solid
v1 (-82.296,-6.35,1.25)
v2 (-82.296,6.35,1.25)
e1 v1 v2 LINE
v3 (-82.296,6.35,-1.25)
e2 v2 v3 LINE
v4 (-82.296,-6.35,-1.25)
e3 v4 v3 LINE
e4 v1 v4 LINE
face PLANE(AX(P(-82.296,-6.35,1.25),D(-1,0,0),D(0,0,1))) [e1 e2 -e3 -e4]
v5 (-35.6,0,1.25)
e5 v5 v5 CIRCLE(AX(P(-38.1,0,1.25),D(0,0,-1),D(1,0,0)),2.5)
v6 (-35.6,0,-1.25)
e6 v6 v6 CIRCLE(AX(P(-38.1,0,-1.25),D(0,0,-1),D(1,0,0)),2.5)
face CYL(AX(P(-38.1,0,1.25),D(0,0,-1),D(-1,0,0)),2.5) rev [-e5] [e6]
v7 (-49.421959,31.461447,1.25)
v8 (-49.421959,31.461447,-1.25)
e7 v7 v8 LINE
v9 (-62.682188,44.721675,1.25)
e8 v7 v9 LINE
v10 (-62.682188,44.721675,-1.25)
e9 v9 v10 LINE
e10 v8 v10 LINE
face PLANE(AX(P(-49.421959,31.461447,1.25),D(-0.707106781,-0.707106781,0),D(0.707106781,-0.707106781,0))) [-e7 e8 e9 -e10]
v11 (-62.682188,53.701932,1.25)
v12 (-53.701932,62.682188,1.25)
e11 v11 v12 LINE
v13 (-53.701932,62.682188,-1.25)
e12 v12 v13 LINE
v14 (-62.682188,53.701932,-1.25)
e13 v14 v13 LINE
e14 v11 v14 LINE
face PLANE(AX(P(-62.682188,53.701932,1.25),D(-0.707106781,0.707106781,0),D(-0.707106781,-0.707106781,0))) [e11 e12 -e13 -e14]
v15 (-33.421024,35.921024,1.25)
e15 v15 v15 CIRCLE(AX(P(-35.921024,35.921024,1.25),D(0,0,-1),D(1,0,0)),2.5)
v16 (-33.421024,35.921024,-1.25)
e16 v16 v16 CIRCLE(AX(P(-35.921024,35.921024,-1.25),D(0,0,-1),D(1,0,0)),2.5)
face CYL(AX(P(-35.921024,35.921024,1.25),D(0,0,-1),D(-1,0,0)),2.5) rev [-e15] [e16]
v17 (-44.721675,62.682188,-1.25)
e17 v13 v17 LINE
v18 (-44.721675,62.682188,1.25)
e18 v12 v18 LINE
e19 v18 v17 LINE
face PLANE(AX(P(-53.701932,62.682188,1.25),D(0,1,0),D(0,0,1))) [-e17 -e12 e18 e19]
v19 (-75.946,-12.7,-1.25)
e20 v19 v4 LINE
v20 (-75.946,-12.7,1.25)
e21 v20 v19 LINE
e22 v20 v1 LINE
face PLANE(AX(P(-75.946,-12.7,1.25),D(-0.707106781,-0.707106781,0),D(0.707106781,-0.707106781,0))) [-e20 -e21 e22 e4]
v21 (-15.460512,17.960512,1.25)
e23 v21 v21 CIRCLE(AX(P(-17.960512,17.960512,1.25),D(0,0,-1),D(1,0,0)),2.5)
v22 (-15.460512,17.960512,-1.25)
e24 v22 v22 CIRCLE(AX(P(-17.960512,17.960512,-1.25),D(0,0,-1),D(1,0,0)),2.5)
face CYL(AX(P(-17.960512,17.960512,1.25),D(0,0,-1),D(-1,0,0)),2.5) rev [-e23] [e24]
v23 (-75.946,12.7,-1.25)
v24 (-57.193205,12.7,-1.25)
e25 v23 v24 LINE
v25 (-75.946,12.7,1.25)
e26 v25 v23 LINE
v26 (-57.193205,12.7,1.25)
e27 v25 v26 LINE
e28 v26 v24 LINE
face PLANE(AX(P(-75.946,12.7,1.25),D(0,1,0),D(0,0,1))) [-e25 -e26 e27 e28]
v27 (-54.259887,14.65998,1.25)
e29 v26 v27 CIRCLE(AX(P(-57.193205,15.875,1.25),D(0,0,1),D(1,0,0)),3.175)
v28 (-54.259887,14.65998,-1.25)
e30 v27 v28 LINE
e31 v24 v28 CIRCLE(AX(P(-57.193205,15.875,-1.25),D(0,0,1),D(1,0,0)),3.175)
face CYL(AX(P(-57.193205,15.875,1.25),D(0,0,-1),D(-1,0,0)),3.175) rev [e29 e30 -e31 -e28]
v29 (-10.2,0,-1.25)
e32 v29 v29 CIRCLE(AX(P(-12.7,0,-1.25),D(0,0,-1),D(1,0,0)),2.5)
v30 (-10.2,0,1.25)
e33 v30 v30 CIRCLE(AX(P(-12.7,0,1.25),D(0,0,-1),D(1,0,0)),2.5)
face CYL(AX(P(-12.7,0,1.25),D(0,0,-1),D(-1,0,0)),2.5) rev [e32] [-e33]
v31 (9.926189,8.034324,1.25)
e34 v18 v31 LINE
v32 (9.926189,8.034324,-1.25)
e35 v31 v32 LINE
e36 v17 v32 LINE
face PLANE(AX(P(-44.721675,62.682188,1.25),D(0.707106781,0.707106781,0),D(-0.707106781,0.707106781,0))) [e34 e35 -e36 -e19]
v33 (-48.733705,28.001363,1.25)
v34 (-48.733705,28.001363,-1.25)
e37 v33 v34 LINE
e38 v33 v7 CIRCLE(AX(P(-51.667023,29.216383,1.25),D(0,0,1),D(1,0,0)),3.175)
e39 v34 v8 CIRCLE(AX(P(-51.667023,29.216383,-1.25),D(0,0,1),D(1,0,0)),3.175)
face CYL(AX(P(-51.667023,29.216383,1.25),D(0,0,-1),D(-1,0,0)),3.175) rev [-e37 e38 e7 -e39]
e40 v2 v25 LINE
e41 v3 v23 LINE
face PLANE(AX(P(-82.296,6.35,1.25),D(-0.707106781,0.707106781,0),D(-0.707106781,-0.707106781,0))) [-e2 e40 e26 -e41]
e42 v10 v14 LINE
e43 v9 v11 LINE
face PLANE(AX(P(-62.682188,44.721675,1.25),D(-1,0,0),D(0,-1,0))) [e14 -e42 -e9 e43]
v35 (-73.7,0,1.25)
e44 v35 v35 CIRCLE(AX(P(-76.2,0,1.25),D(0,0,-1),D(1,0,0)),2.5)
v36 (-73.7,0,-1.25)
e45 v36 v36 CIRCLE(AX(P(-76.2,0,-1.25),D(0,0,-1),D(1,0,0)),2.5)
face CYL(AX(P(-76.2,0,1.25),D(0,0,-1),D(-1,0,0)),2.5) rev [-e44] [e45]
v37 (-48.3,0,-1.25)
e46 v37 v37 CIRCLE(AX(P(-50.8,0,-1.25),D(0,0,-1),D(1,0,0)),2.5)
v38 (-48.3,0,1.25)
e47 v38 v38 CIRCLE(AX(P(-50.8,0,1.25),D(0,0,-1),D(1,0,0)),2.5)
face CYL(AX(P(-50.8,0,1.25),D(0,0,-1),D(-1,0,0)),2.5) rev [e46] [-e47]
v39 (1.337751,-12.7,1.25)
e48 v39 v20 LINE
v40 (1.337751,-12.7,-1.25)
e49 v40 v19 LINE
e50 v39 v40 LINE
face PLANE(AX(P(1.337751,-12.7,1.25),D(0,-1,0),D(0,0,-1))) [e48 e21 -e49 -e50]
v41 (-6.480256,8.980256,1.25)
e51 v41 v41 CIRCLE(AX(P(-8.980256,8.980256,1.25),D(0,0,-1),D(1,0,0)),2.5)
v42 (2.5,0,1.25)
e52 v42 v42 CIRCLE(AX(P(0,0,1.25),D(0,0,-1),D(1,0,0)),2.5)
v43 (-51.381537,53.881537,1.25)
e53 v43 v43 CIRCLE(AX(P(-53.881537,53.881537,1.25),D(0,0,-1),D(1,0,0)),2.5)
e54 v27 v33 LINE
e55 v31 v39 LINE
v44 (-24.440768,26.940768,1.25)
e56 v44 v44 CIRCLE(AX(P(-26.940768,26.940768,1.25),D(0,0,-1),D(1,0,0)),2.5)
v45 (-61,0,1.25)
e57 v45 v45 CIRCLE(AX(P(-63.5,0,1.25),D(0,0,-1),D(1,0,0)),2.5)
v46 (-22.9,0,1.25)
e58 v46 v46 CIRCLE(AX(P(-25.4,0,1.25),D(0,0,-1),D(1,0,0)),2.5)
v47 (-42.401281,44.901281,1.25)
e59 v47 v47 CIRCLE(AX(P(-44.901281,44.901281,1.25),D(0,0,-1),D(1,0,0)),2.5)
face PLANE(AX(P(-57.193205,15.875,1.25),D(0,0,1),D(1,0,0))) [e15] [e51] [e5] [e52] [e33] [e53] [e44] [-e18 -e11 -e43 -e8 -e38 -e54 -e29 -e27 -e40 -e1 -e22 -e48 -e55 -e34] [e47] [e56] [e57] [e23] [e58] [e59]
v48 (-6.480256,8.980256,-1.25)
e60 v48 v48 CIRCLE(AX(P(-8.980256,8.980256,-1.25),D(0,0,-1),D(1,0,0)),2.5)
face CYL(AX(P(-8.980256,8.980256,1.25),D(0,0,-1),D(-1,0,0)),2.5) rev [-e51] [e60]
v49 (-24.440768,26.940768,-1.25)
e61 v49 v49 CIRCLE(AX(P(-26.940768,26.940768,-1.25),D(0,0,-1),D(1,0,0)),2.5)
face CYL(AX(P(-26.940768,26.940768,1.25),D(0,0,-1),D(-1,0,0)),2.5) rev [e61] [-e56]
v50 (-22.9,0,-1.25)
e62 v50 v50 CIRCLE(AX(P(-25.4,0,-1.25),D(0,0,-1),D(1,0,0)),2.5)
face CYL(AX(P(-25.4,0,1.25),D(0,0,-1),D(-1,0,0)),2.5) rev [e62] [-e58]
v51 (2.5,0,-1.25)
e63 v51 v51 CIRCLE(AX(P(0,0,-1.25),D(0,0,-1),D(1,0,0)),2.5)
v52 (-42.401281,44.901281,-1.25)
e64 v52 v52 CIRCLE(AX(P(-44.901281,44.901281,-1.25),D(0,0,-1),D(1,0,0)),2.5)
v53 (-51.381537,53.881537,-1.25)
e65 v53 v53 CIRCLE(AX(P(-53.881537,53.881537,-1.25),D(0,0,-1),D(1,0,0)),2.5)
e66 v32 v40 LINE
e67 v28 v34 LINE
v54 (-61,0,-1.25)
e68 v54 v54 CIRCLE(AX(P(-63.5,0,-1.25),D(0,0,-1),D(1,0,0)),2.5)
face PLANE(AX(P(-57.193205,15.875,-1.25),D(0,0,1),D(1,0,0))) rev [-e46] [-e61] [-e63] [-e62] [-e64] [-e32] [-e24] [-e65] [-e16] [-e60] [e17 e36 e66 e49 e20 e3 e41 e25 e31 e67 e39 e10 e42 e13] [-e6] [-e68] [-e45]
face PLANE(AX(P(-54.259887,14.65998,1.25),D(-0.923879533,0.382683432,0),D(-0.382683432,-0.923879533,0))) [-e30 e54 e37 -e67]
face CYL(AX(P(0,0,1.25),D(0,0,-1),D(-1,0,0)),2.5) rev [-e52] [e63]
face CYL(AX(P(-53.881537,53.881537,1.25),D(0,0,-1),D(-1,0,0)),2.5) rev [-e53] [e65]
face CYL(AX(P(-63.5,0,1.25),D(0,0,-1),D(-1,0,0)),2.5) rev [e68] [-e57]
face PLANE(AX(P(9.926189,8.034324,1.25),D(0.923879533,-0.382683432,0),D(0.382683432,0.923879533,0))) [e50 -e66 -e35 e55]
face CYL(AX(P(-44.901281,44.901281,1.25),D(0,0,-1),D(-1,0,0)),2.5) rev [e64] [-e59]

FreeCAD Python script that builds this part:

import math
import FreeCAD as App
import Part
import Sketcher

V = App.Vector
Q = App.Units.Quantity

doc = App.newDocument("Part")
body = doc.addObject("PartDesign::Body", "Body")

# Sketch on XY plane
sketch1 = doc.addObject("Sketcher::SketchObject", "Sketch")
body.addObject(sketch1)
sketch1.AttachmentSupport = (doc.XY_Plane, [""])
sketch1.MapMode = "FlatFace"
sketch1.AttachmentOffset = App.Placement(V(0, 0, -1.25), App.Rotation())
sketch1.addGeometry([
    Part.LineSegment(V(1.3, -12.7, 0), V(-75.9, -12.7, 0)),  # 0
    Part.LineSegment(V(-75.9, -12.7, 0), V(-82.3, -6.3, 0)),  # 1
    Part.LineSegment(V(-82.3, -6.3, 0), V(-82.3, 6.3, 0)),  # 2
    Part.LineSegment(V(-82.3, 6.3, 0), V(-75.9, 12.7, 0)),  # 3
    Part.LineSegment(V(-75.9, 12.7, 0), V(-57.2, 12.7, 0)),  # 4
    Part.ArcOfCircle(Part.Circle(V(-57.2, 15.9, 0), V(0, 0, 1), 3.2), math.radians(-90), math.radians(-23)),  # 5
    Part.LineSegment(V(-54.3, 14.7, 0), V(-48.7, 28, 0)),  # 6
    Part.ArcOfCircle(Part.Circle(V(-51.7, 29.2, 0), V(0, 0, 1), 3.2), math.radians(-23), math.radians(45)),  # 7
    Part.LineSegment(V(-49.4, 31.5, 0), V(-62.7, 44.7, 0)),  # 8
    Part.LineSegment(V(-62.7, 44.7, 0), V(-62.7, 53.7, 0)),  # 9
    Part.LineSegment(V(-62.7, 53.7, 0), V(-53.7, 62.7, 0)),  # 10
    Part.LineSegment(V(-53.7, 62.7, 0), V(-44.7, 62.7, 0)),  # 11
    Part.LineSegment(V(-44.7, 62.7, 0), V(9.9, 8, 0)),  # 12
    Part.LineSegment(V(9.9, 8, 0), V(1.3, -12.7, 0)),  # 13
    Part.Circle(V(0, 0, 0), V(0, 0, 1), 2.5),  # 14
    Part.Circle(V(-12.7, 0, 0), V(0, 0, 1), 2.5),  # 15
    Part.Circle(V(-9, 9, 0), V(0, 0, 1), 2.5),  # 16
    Part.Circle(V(-25.4, 0, 0), V(0, 0, 1), 2.5),  # 17
    Part.Circle(V(-38.1, 0, 0), V(0, 0, 1), 2.5),  # 18
    Part.Circle(V(-18, 18, 0), V(0, 0, 1), 2.5),  # 19
    Part.Circle(V(-50.8, 0, 0), V(0, 0, 1), 2.5),  # 20
    Part.Circle(V(-63.5, 0, 0), V(0, 0, 1), 2.5),  # 21
    Part.Circle(V(-76.2, 0, 0), V(0, 0, 1), 2.5),  # 22
    Part.Circle(V(-26.9, 26.9, 0), V(0, 0, 1), 2.5),  # 23
    Part.Circle(V(-35.9, 35.9, 0), V(0, 0, 1), 2.5),  # 24
    Part.Circle(V(-44.9, 44.9, 0), V(0, 0, 1), 2.5),  # 25
    Part.Circle(V(-53.9, 53.9, 0), V(0, 0, 1), 2.5),  # 26
], False)
sketch1.addConstraint([
    Sketcher.Constraint("Coincident", 0, 2, 1, 1),
    Sketcher.Constraint("Coincident", 1, 2, 2, 1),
    Sketcher.Constraint("Coincident", 2, 2, 3, 1),
    Sketcher.Constraint("Coincident", 3, 2, 4, 1),
    Sketcher.Constraint("Tangent", 4, 2, 5, 1),
    Sketcher.Constraint("Tangent", 5, 2, 6, 1),
    Sketcher.Constraint("Tangent", 6, 2, 7, 1),
    Sketcher.Constraint("Tangent", 7, 2, 8, 1),
    Sketcher.Constraint("Coincident", 8, 2, 9, 1),
    Sketcher.Constraint("Coincident", 9, 2, 10, 1),
    Sketcher.Constraint("Coincident", 10, 2, 11, 1),
    Sketcher.Constraint("Coincident", 11, 2, 12, 1),
    Sketcher.Constraint("Coincident", 12, 2, 13, 1),
    Sketcher.Constraint("Coincident", 13, 2, 0, 1),
    Sketcher.Constraint("Horizontal", 0),
    Sketcher.Constraint("Vertical", 2),
    Sketcher.Constraint("Horizontal", 4),
    Sketcher.Constraint("Vertical", 9),
    Sketcher.Constraint("Horizontal", 11),
    Sketcher.Constraint("Coincident", 14, 3, -1, 1),
    Sketcher.Constraint("Equal", 5, 7),
    Sketcher.Constraint("Equal", 14, 15),
    Sketcher.Constraint("Equal", 15, 16),
    Sketcher.Constraint("Equal", 16, 17),
    Sketcher.Constraint("Equal", 17, 18),
    Sketcher.Constraint("Equal", 18, 19),
    Sketcher.Constraint("Equal", 19, 20),
    Sketcher.Constraint("Equal", 20, 21),
    Sketcher.Constraint("Equal", 21, 22),
    Sketcher.Constraint("Equal", 22, 23),
    Sketcher.Constraint("Equal", 23, 24),
    Sketcher.Constraint("Equal", 24, 25),
    Sketcher.Constraint("Equal", 25, 26),
    Sketcher.Constraint("Symmetric", 0, 2, 3, 2, -1),
    Sketcher.Constraint("PointOnObject", 15, 3, -1),
    Sketcher.Constraint("PointOnObject", 17, 3, -1),
    Sketcher.Constraint("PointOnObject", 18, 3, -1),
    Sketcher.Constraint("PointOnObject", 20, 3, -1),
    Sketcher.Constraint("PointOnObject", 21, 3, -1),
    Sketcher.Constraint("PointOnObject", 22, 3, -1),
    Sketcher.Constraint("Perpendicular", 1, 3),
    Sketcher.Constraint("Perpendicular", 3, 8),
    Sketcher.Constraint("Perpendicular", 8, 10),
    Sketcher.Constraint("Perpendicular", 10, 12),
    Sketcher.Constraint("Parallel", 6, 13),
    Sketcher.Constraint("Equal", 11, 9),
    Sketcher.Constraint("Equal", 1, 3),
    Sketcher.Constraint("Diameter", 14, 5.0),
    Sketcher.Constraint("DistanceY", 2, 1, 2, 2, 12.7),
    Sketcher.Constraint("Angle", 6, Q("67.5 deg")),
    Sketcher.Constraint("Radius", 5, 3.175),
    Sketcher.Constraint("Distance", 10, 12.7),
    Sketcher.Constraint("DistanceX", 15, 3, -1, 1, 12.7),
    Sketcher.Constraint("DistanceX", 17, 3, -1, 1, 25.4),
    Sketcher.Constraint("DistanceX", 18, 3, -1, 1, 38.1),
    Sketcher.Constraint("DistanceX", 20, 3, -1, 1, 50.8),
    Sketcher.Constraint("DistanceX", 21, 3, -1, 1, 63.5),
    Sketcher.Constraint("DistanceX", 22, 3, -1, 1, 76.2),
    Sketcher.Constraint("DistanceY", 0, 2, -1, 1, 12.7),
    Sketcher.Constraint("DistanceX", 0, 2, -1, 1, 75.946),
    Sketcher.Constraint("DistanceX", 7, 3, 24, 3, 15.745998),
    Sketcher.Constraint("DistanceX", 0, 2, 0, 1, 77.283751),
    Sketcher.Constraint("DistanceX", 5, 3, 6, 2, 8.459499),
    Sketcher.Constraint("DistanceX", 19, 3, 12, 2, 27.886701),
    Sketcher.Constraint("Distance", 12, 77.283751),
    Sketcher.Constraint("Distance", 13, 22.44267),
    Sketcher.Constraint("DistanceX", 4, 1, 4, 2, 18.752795),
    Sketcher.Constraint("DistanceX", 23, 3, -1, 1, 26.940768),
    Sketcher.Constraint("DistanceY", -1, 1, 23, 3, 26.940768),
    Sketcher.Constraint("DistanceX", 25, 3, -1, 1, 44.901281),
    Sketcher.Constraint("DistanceY", -1, 1, 25, 3, 44.901281),
    Sketcher.Constraint("DistanceX", 5, 3, 16, 3, 48.212948),
    Sketcher.Constraint("DistanceY", 7, 3, 24, 3, 6.704642),
    Sketcher.Constraint("DistanceY", 19, 3, 25, 3, 26.940768),
    Sketcher.Constraint("DistanceX", 26, 3, 23, 3, 26.940768),
    Sketcher.Constraint("DistanceY", 23, 3, 26, 3, 26.940768),
    Sketcher.Constraint("DistanceY", -1, 1, 16, 3, 8.980256),
])
pad1 = doc.addObject("PartDesign::Pad", "Pad")
body.addObject(pad1)
pad1.Profile = sketch1
pad1.Length = 2.5

doc.recompute()
